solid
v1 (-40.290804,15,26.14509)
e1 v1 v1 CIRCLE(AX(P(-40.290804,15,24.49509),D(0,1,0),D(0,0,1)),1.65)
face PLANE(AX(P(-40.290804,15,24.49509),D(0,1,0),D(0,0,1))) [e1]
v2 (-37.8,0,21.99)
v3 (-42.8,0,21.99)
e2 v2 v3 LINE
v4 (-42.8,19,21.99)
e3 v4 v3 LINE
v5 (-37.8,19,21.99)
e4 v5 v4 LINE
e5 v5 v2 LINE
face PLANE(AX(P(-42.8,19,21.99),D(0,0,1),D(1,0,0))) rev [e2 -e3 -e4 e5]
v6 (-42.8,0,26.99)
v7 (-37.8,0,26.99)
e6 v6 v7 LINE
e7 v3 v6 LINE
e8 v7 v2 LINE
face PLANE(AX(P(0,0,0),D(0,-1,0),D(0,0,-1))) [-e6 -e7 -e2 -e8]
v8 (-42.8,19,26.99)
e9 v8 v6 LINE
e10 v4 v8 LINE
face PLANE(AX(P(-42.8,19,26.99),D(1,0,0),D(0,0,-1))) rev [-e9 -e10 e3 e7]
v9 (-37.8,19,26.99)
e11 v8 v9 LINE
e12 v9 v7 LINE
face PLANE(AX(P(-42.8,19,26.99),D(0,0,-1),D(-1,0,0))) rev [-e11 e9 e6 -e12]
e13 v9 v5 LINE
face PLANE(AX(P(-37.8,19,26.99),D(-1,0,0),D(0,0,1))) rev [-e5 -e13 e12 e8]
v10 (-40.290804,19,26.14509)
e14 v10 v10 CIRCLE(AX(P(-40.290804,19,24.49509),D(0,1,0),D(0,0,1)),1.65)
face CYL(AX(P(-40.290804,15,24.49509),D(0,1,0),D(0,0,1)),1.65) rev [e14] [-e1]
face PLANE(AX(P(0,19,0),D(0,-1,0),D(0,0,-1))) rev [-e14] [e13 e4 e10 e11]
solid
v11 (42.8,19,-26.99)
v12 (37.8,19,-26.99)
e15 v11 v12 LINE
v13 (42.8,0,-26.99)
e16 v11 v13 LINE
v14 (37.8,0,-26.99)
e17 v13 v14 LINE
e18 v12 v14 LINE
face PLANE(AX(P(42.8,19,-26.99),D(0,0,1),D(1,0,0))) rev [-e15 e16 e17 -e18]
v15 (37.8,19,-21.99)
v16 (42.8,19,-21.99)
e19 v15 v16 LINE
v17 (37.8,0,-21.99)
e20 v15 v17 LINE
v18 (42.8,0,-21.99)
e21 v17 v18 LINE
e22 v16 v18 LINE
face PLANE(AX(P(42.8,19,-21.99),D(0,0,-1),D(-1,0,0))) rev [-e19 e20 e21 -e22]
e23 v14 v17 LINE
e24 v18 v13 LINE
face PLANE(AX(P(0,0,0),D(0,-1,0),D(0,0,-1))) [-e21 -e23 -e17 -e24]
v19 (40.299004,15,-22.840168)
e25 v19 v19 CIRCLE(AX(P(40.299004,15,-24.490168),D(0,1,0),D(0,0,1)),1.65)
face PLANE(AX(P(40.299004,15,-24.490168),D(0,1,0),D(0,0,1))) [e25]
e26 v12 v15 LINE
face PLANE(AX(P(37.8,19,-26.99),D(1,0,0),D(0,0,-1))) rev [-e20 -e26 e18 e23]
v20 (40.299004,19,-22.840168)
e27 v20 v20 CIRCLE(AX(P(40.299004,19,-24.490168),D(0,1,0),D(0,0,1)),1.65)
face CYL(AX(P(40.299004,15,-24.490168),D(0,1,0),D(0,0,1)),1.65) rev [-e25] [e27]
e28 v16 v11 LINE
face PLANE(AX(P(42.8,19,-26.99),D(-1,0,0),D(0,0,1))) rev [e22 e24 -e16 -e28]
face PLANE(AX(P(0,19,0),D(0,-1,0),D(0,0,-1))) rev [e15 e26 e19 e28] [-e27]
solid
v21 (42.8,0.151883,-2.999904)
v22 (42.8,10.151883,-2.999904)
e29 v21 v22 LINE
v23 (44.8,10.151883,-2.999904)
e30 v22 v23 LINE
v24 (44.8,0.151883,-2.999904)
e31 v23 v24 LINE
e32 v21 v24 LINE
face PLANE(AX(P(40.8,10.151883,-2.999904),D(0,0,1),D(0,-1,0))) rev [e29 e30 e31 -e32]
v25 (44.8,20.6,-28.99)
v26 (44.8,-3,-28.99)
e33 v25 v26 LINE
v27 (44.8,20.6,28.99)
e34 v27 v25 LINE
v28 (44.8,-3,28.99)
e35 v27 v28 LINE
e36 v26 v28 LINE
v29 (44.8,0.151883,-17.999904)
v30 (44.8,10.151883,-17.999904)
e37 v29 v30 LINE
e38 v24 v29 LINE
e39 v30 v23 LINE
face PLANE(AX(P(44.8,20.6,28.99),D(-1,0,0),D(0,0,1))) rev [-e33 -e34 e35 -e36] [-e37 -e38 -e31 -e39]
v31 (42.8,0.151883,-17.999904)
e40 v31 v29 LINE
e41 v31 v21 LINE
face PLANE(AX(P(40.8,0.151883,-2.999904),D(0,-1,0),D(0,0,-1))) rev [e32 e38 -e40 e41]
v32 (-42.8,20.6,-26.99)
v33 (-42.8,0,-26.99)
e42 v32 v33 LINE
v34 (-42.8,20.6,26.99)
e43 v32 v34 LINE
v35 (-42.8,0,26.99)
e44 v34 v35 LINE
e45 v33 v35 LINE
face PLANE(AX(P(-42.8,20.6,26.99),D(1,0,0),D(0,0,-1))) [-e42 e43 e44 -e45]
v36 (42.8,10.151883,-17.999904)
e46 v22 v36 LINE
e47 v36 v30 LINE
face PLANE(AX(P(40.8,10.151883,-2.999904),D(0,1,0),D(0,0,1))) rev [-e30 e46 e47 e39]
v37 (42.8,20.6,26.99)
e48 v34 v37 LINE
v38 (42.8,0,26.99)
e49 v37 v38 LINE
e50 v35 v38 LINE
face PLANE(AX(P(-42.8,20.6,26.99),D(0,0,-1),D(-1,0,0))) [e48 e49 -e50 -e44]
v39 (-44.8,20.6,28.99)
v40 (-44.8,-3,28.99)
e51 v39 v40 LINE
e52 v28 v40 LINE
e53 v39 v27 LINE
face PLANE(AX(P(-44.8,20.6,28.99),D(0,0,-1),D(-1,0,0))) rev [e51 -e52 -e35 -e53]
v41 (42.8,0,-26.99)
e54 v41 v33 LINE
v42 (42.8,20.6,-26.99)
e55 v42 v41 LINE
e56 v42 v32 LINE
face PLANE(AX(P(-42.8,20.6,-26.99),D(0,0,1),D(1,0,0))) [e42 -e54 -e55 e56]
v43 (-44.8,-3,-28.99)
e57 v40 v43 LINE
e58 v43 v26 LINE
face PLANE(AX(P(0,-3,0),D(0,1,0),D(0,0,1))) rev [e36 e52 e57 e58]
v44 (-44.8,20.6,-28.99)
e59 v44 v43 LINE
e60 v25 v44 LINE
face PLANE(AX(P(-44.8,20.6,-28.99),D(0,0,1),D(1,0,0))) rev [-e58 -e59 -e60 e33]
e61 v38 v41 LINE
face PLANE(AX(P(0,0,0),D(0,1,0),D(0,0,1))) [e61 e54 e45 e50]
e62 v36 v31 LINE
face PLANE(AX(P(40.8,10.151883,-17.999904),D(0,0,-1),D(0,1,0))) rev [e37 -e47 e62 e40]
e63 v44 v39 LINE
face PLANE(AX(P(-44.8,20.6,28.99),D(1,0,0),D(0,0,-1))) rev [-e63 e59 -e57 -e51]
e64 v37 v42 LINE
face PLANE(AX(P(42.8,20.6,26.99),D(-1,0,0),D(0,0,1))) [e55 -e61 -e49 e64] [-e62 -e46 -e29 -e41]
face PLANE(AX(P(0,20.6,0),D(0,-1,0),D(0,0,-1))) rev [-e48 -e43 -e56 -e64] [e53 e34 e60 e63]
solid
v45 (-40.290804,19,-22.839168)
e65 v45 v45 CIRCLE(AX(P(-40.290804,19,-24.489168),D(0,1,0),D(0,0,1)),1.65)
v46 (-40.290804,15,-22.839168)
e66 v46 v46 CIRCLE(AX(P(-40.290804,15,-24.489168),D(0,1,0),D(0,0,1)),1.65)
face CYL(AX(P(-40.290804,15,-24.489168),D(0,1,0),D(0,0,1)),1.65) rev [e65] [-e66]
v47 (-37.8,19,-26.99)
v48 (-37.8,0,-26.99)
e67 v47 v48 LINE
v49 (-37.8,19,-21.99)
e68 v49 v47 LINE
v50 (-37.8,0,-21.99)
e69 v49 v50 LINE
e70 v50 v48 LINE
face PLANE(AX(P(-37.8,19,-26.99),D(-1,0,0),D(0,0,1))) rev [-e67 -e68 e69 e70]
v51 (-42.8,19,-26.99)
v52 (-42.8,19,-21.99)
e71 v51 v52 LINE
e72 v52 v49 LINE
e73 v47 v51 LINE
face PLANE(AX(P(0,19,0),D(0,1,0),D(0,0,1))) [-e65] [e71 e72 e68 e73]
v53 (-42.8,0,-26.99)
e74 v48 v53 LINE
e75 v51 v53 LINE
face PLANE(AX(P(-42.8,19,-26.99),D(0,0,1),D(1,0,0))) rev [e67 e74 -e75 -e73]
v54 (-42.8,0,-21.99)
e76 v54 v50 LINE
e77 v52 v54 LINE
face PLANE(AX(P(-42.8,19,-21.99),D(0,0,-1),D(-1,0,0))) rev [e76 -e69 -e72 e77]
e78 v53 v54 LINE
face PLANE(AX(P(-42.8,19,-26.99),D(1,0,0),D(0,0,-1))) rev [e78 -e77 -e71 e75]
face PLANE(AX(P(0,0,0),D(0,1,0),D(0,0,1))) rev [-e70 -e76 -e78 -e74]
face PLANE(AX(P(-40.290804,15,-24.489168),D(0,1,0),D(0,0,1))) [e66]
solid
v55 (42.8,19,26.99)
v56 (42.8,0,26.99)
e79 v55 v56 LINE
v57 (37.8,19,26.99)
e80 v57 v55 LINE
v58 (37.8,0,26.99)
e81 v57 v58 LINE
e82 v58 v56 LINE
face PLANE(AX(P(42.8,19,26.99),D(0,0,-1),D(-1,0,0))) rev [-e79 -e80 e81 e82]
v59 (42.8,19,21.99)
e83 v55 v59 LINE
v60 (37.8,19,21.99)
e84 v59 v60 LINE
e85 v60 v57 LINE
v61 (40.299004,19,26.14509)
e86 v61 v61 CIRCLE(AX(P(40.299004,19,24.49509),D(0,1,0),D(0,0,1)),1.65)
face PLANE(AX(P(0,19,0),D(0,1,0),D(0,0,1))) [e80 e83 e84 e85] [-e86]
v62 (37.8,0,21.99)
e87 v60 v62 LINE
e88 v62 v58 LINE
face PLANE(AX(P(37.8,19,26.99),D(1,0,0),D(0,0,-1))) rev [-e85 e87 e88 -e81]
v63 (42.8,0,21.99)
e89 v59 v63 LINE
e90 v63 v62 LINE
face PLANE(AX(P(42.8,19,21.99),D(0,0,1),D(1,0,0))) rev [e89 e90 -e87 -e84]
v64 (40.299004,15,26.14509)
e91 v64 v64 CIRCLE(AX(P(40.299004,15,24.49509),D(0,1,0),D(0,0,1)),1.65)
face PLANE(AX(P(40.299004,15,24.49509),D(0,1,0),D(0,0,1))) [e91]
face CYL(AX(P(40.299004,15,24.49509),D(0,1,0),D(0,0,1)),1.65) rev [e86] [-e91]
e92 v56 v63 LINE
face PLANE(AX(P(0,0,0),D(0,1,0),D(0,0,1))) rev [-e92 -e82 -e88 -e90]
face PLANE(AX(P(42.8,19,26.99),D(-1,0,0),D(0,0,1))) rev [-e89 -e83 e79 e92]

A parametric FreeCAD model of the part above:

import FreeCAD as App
import Part
import Sketcher

V = App.Vector
Q = App.Units.Quantity

doc = App.newDocument("Part")
body = doc.addObject("PartDesign::Body", "Body")

# Sketch on XZ plane
sketch1 = body.newObject("Sketcher::SketchObject", "Sketch")
sketch1.AttachmentSupport = (doc.getObject("XZ_Plane"), [""])
sketch1.MapMode = "FlatFace"
sketch1.addGeometry(Part.LineSegment(V(-45, -29, 0), V(-45, 29, 0)), False)
sketch1.addGeometry(Part.LineSegment(V(-45, 29, 0), V(45, 29, 0)), False)
sketch1.addGeometry(Part.LineSegment(V(45, 29, 0), V(45, -29, 0)), False)
sketch1.addGeometry(Part.LineSegment(V(45, -29, 0), V(-45, -29, 0)), False)
sketch1.addGeometry(Part.LineSegment(V(43, 27, 0), V(-43, 27, 0)), False)
sketch1.addGeometry(Part.LineSegment(V(-43, 27, 0), V(-43, -27, 0)), False)
sketch1.addGeometry(Part.LineSegment(V(-43, -27, 0), V(43, -27, 0)), False)
sketch1.addGeometry(Part.LineSegment(V(43, -27, 0), V(43, 27, 0)), False)
sketch1.addConstraint(Sketcher.Constraint("Coincident", 0, 2, 1, 1))
sketch1.addConstraint(Sketcher.Constraint("Coincident", 1, 2, 2, 1))
sketch1.addConstraint(Sketcher.Constraint("Coincident", 2, 2, 3, 1))
sketch1.addConstraint(Sketcher.Constraint("Coincident", 3, 2, 0, 1))
sketch1.addConstraint(Sketcher.Constraint("Coincident", 4, 2, 5, 1))
sketch1.addConstraint(Sketcher.Constraint("Coincident", 5, 2, 6, 1))
sketch1.addConstraint(Sketcher.Constraint("Coincident", 6, 2, 7, 1))
sketch1.addConstraint(Sketcher.Constraint("Coincident", 7, 2, 4, 1))
sketch1.addConstraint(Sketcher.Constraint("Vertical", 0))
sketch1.addConstraint(Sketcher.Constraint("Horizontal", 1))
sketch1.addConstraint(Sketcher.Constraint("Vertical", 2))
sketch1.addConstraint(Sketcher.Constraint("Horizontal", 3))
sketch1.addConstraint(Sketcher.Constraint("Horizontal", 4))
sketch1.addConstraint(Sketcher.Constraint("Vertical", 5))
sketch1.addConstraint(Sketcher.Constraint("Horizontal", 6))
sketch1.addConstraint(Sketcher.Constraint("Vertical", 7))
sketch1.addConstraint(Sketcher.Constraint("Symmetric", 0, 2, 2, 2, -1, 1))
sketch1.addConstraint(Sketcher.Constraint("Symmetric", 4, 2, 6, 2, -1, 1))
sketch1.addConstraint(Sketcher.Constraint("DistanceX", 1, 1, 1, 2, Q("89.6 mm")))
sketch1.addConstraint(Sketcher.Constraint("DistanceX", 4, 2, 4, 1, Q("85.6 mm")))
sketch1.addConstraint(Sketcher.Constraint("DistanceY", 4, 2, 0, 2, Q("2 mm")))
sketch1.addConstraint(Sketcher.Constraint("DistanceY", 0, 1, 0, 2, Q("57.98 mm")))
pad1 = body.newObject("PartDesign::Pad", "Pad")
pad1.Profile = sketch1
pad1.Length = 20.6
pad1.Reversed = True

# Sketch on XZ plane
sketch2 = body.newObject("Sketcher::SketchObject", "Sketch001")
sketch2.AttachmentSupport = (doc.getObject("XZ_Plane"), [""])
sketch2.MapMode = "FlatFace"
sketch2.addGeometry(Part.LineSegment(V(-45, 29, 0), V(-45, -29, 0)), False)
sketch2.addGeometry(Part.LineSegment(V(-45, -29, 0), V(45, -29, 0)), False)
sketch2.addGeometry(Part.LineSegment(V(45, -29, 0), V(45, 29, 0)), False)
sketch2.addGeometry(Part.LineSegment(V(45, 29, 0), V(-45, 29, 0)), False)
sketch2.addConstraint(Sketcher.Constraint("Coincident", 0, 2, 1, 1))
sketch2.addConstraint(Sketcher.Constraint("Coincident", 1, 2, 2, 1))
sketch2.addConstraint(Sketcher.Constraint("Coincident", 2, 2, 3, 1))
sketch2.addConstraint(Sketcher.Constraint("Coincident", 3, 2, 0, 1))
sketch2.addConstraint(Sketcher.Constraint("Vertical", 0))
sketch2.addConstraint(Sketcher.Constraint("Horizontal", 1))
sketch2.addConstraint(Sketcher.Constraint("Vertical", 2))
sketch2.addConstraint(Sketcher.Constraint("Horizontal", 3))
sketch2.addConstraint(Sketcher.Constraint("Symmetric", 0, 2, 2, 2, -1, 1))
sketch2.addConstraint(Sketcher.Constraint("DistanceX", 1, 1, 1, 2, Q("89.6 mm")))
sketch2.addConstraint(Sketcher.Constraint("DistanceY", 0, 2, 0, 1, Q("57.98 mm")))
pad2 = body.newObject("PartDesign::Pad", "Pad001")
pad2.Profile = sketch2
pad2.Length = 3

# Sketch on YZ plane
sketch3 = body.newObject("Sketcher::SketchObject", "Sketch002")
sketch3.AttachmentSupport = (doc.getObject("YZ_Plane"), [""])
sketch3.MapMode = "FlatFace"
sketch3.AttachmentOffset = App.Placement(V(0, 0, 44.8), App.Rotation())
sketch3.addGeometry(Part.LineSegment(V(10, -3, 0), V(0, -3, 0)), False)
sketch3.addGeometry(Part.LineSegment(V(0, -3, 0), V(0, -18, 0)), False)
sketch3.addGeometry(Part.LineSegment(V(0, -18, 0), V(10, -18, 0)), False)
sketch3.addGeometry(Part.LineSegment(V(10, -18, 0), V(10, -3, 0)), False)
sketch3.addConstraint(Sketcher.Constraint("Coincident", 0, 2, 1, 1))
sketch3.addConstraint(Sketcher.Constraint("Coincident", 1, 2, 2, 1))
sketch3.addConstraint(Sketcher.Constraint("Coincident", 2, 2, 3, 1))
sketch3.addConstraint(Sketcher.Constraint("Coincident", 3, 2, 0, 1))
sketch3.addConstraint(Sketcher.Constraint("Horizontal", 0))
sketch3.addConstraint(Sketcher.Constraint("Vertical", 1))
sketch3.addConstraint(Sketcher.Constraint("Horizontal", 2))
sketch3.addConstraint(Sketcher.Constraint("Vertical", 3))
sketch3.addConstraint(Sketcher.Constraint("DistanceX", 0, 2, 0, 1, Q("10 mm")))
sketch3.addConstraint(Sketcher.Constraint("DistanceY", 1, 2, 1, 1, Q("15 mm")))
sketch3.addConstraint(Sketcher.Constraint("DistanceX", -1, 1, 0, 2, Q("0.151883 mm")))
sketch3.addConstraint(Sketcher.Constraint("DistanceY", 0, 2, -1, 1, Q("2.999904 mm")))
pocket1 = body.newObject("PartDesign::Pocket", "Pocket")
pocket1.Profile = sketch3
pocket1.Length = 4
body2 = doc.addObject("PartDesign::Body", "Body001")

# Sketch on XZ plane
sketch4 = body2.newObject("Sketcher::SketchObject", "Sketch003")
sketch4.AttachmentSupport = (doc.getObject("XZ_Plane001"), [""])
sketch4.MapMode = "FlatFace"
sketch4.addGeometry(Part.LineSegment(V(38, -27, 0), V(38, -22, 0)), False)
sketch4.addGeometry(Part.LineSegment(V(38, -22, 0), V(43, -22, 0)), False)
sketch4.addGeometry(Part.LineSegment(V(43, -22, 0), V(43, -27, 0)), False)
sketch4.addGeometry(Part.LineSegment(V(43, -27, 0), V(38, -27, 0)), False)
sketch4.addConstraint(Sketcher.Constraint("Coincident", 0, 2, 1, 1))
sketch4.addConstraint(Sketcher.Constraint("Coincident", 1, 2, 2, 1))
sketch4.addConstraint(Sketcher.Constraint("Coincident", 2, 2, 3, 1))
sketch4.addConstraint(Sketcher.Constraint("Coincident", 3, 2, 0, 1))
sketch4.addConstraint(Sketcher.Constraint("Vertical", 0))
sketch4.addConstraint(Sketcher.Constraint("Horizontal", 1))
sketch4.addConstraint(Sketcher.Constraint("Vertical", 2))
sketch4.addConstraint(Sketcher.Constraint("Horizontal", 3))
sketch4.addConstraint(Sketcher.Constraint("Equal", 3, 0))
sketch4.addConstraint(Sketcher.Constraint("DistanceX", 1, 1, 1, 2, Q("5 mm")))
sketch4.addConstraint(Sketcher.Constraint("DistanceX", -1, 1, 0, 2, Q("37.8 mm")))
sketch4.addConstraint(Sketcher.Constraint("DistanceY", 0, 2, -1, 1, Q("21.99 mm")))
pad3 = body2.newObject("PartDesign::Pad", "Pad002")
pad3.Profile = sketch4
pad3.Length = 19
pad3.Reversed = True
body3 = doc.addObject("PartDesign::Body", "Body002")

# Sketch on XZ plane
sketch5 = body3.newObject("Sketcher::SketchObject", "Sketch004")
sketch5.AttachmentSupport = (doc.getObject("XZ_Plane002"), [""])
sketch5.MapMode = "FlatFace"
sketch5.addGeometry(Part.LineSegment(V(-43, -27, 0), V(-43, -22, 0)), False)
sketch5.addGeometry(Part.LineSegment(V(-43, -22, 0), V(-38, -22, 0)), False)
sketch5.addGeometry(Part.LineSegment(V(-38, -22, 0), V(-38, -27, 0)), False)
sketch5.addGeometry(Part.LineSegment(V(-38, -27, 0), V(-43, -27, 0)), False)
sketch5.addConstraint(Sketcher.Constraint("Coincident", 0, 2, 1, 1))
sketch5.addConstraint(Sketcher.Constraint("Coincident", 1, 2, 2, 1))
sketch5.addConstraint(Sketcher.Constraint("Coincident", 2, 2, 3, 1))
sketch5.addConstraint(Sketcher.Constraint("Coincident", 3, 2, 0, 1))
sketch5.addConstraint(Sketcher.Constraint("Vertical", 0))
sketch5.addConstraint(Sketcher.Constraint("Horizontal", 1))
sketch5.addConstraint(Sketcher.Constraint("Vertical", 2))
sketch5.addConstraint(Sketcher.Constraint("Horizontal", 3))
sketch5.addConstraint(Sketcher.Constraint("Equal", 3, 0))
sketch5.addConstraint(Sketcher.Constraint("DistanceX", 1, 1, 1, 2, Q("5 mm")))
sketch5.addConstraint(Sketcher.Constraint("DistanceX", 0, 2, -1, 1, Q("42.8 mm")))
sketch5.addConstraint(Sketcher.Constraint("DistanceY", 0, 2, -1, 1, Q("21.99 mm")))
pad4 = body3.newObject("PartDesign::Pad", "Pad003")
pad4.Profile = sketch5
pad4.Length = 19
pad4.Reversed = True
body4 = doc.addObject("PartDesign::Body", "Body003")

# Sketch on XZ plane
sketch6 = body4.newObject("Sketcher::SketchObject", "Sketch005")
sketch6.AttachmentSupport = (doc.getObject("XZ_Plane003"), [""])
sketch6.MapMode = "FlatFace"
sketch6.addGeometry(Part.LineSegment(V(-43, 22, 0), V(-43, 27, 0)), False)
sketch6.addGeometry(Part.LineSegment(V(-43, 27, 0), V(-38, 27, 0)), False)
sketch6.addGeometry(Part.LineSegment(V(-38, 27, 0), V(-38, 22, 0)), False)
sketch6.addGeometry(Part.LineSegment(V(-38, 22, 0), V(-43, 22, 0)), False)
sketch6.addConstraint(Sketcher.Constraint("Coincident", 0, 2, 1, 1))
sketch6.addConstraint(Sketcher.Constraint("Coincident", 1, 2, 2, 1))
sketch6.addConstraint(Sketcher.Constraint("Coincident", 2, 2, 3, 1))
sketch6.addConstraint(Sketcher.Constraint("Coincident", 3, 2, 0, 1))
sketch6.addConstraint(Sketcher.Constraint("Vertical", 0))
sketch6.addConstraint(Sketcher.Constraint("Horizontal", 1))
sketch6.addConstraint(Sketcher.Constraint("Vertical", 2))
sketch6.addConstraint(Sketcher.Constraint("Horizontal", 3))
sketch6.addConstraint(Sketcher.Constraint("Equal", 3, 0))
sketch6.addConstraint(Sketcher.Constraint("DistanceX", 1, 1, 1, 2, Q("5 mm")))
sketch6.addConstraint(Sketcher.Constraint("DistanceX", 0, 2, -1, 1, Q("42.8 mm")))
sketch6.addConstraint(Sketcher.Constraint("DistanceY", -1, 1, 0, 2, Q("26.99 mm")))
pad5 = body4.newObject("PartDesign::Pad", "Pad004")
pad5.Profile = sketch6
pad5.Length = 19
pad5.Reversed = True
body5 = doc.addObject("PartDesign::Body", "Body004")

# Sketch on XZ plane
sketch7 = body5.newObject("Sketcher::SketchObject", "Sketch006")
sketch7.AttachmentSupport = (doc.getObject("XZ_Plane004"), [""])
sketch7.MapMode = "FlatFace"
sketch7.addGeometry(Part.LineSegment(V(38, 22, 0), V(38, 27, 0)), False)
sketch7.addGeometry(Part.LineSegment(V(38, 27, 0), V(43, 27, 0)), False)
sketch7.addGeometry(Part.LineSegment(V(43, 27, 0), V(43, 22, 0)), False)
sketch7.addGeometry(Part.LineSegment(V(43, 22, 0), V(38, 22, 0)), False)
sketch7.addConstraint(Sketcher.Constraint("Coincident", 0, 2, 1, 1))
sketch7.addConstraint(Sketcher.Constraint("Coincident", 1, 2, 2, 1))
sketch7.addConstraint(Sketcher.Constraint("Coincident", 2, 2, 3, 1))
sketch7.addConstraint(Sketcher.Constraint("Coincident", 3, 2, 0, 1))
sketch7.addConstraint(Sketcher.Constraint("Vertical", 0))
sketch7.addConstraint(Sketcher.Constraint("Horizontal", 1))
sketch7.addConstraint(Sketcher.Constraint("Vertical", 2))
sketch7.addConstraint(Sketcher.Constraint("Horizontal", 3))
sketch7.addConstraint(Sketcher.Constraint("Equal", 3, 0))
sketch7.addConstraint(Sketcher.Constraint("DistanceX", 1, 1, 1, 2, Q("5 mm")))
sketch7.addConstraint(Sketcher.Constraint("DistanceX", -1, 1, 0, 2, Q("37.8 mm")))
sketch7.addConstraint(Sketcher.Constraint("DistanceY", -1, 1, 0, 2, Q("26.99 mm")))
pad6 = body5.newObject("PartDesign::Pad", "Pad005")
pad6.Profile = sketch7
pad6.Length = 19
pad6.Reversed = True
body6 = doc.addObject("PartDesign::Body", "Body005")
body6.AllowCompound = True

# Sketch on XZ plane
sketch8 = body6.newObject("Sketcher::SketchObject", "Sketch007")
sketch8.AttachmentSupport = (doc.getObject("XZ_Plane005"), [""])
sketch8.MapMode = "FlatFace"
sketch8.AttachmentOffset = App.Placement(V(0, 0, -19), App.Rotation())
sketch8.addGeometry(Part.Circle(V(-40.3, -24.5, 0), V(0, 0, 1), 1.6), False)
sketch8.addGeometry(Part.Circle(V(40.3, -24.5, 0), V(0, 0, 1), 1.6), False)
sketch8.addGeometry(Part.Circle(V(40.3, 24.5, 0), V(0, 0, 1), 1.6), False)
sketch8.addGeometry(Part.Circle(V(-40.3, 24.5, 0), V(0, 0, 1), 1.6), False)
sketch8.addConstraint(Sketcher.Constraint("Equal", 0, 1))
sketch8.addConstraint(Sketcher.Constraint("Equal", 1, 2))
sketch8.addConstraint(Sketcher.Constraint("Equal", 2, 3))
sketch8.addConstraint(Sketcher.Constraint("Horizontal", 2, 3, 3, 3))
sketch8.addConstraint(Sketcher.Constraint("Vertical", 1, 3, 2, 3))
sketch8.addConstraint(Sketcher.Constraint("Vertical", 0, 3, 3, 3))
sketch8.addConstraint(Sketcher.Constraint("Diameter", 0, Q("3.3 mm")))
sketch8.addConstraint(Sketcher.Constraint("DistanceY", 1, 3, 0, 3, Q("0.001 mm")))
sketch8.addConstraint(Sketcher.Constraint("DistanceY", -1, 1, 2, 3, Q("24.49509 mm")))
sketch8.addConstraint(Sketcher.Constraint("DistanceY", 1, 3, 2, 3, Q("48.985258 mm")))
sketch8.addConstraint(Sketcher.Constraint("DistanceX", 0, 3, -1, 1, Q("40.290804 mm")))
sketch8.addConstraint(Sketcher.Constraint("DistanceX", -1, 1, 1, 3, Q("40.299004 mm")))
pad7 = body6.newObject("PartDesign::Pad", "Pad006")
pad7.Profile = sketch8
pad7.Length = 4
doc.recompute()

body7 = doc.addObject("PartDesign::Body", "Body006")
body7.BaseFeature = body6
boolean = body2.newObject("PartDesign::Boolean", "Boolean")
boolean.Type = "Cut"
boolean.addObjects([body7])
doc.recompute()

body8 = doc.addObject("PartDesign::Body", "Body007")
body8.BaseFeature = body6
boolean2 = body3.newObject("PartDesign::Boolean", "Boolean001")
boolean2.Type = "Cut"
boolean2.addObjects([body8])
doc.recompute()

body9 = doc.addObject("PartDesign::Body", "Body008")
body9.BaseFeature = body6
boolean3 = body4.newObject("PartDesign::Boolean", "Boolean002")
boolean3.Type = "Cut"
boolean3.addObjects([body9])
doc.recompute()

boolean4 = body5.newObject("PartDesign::Boolean", "Boolean003")
boolean4.Type = "Cut"
boolean4.addObjects([body6])

doc.recompute()
